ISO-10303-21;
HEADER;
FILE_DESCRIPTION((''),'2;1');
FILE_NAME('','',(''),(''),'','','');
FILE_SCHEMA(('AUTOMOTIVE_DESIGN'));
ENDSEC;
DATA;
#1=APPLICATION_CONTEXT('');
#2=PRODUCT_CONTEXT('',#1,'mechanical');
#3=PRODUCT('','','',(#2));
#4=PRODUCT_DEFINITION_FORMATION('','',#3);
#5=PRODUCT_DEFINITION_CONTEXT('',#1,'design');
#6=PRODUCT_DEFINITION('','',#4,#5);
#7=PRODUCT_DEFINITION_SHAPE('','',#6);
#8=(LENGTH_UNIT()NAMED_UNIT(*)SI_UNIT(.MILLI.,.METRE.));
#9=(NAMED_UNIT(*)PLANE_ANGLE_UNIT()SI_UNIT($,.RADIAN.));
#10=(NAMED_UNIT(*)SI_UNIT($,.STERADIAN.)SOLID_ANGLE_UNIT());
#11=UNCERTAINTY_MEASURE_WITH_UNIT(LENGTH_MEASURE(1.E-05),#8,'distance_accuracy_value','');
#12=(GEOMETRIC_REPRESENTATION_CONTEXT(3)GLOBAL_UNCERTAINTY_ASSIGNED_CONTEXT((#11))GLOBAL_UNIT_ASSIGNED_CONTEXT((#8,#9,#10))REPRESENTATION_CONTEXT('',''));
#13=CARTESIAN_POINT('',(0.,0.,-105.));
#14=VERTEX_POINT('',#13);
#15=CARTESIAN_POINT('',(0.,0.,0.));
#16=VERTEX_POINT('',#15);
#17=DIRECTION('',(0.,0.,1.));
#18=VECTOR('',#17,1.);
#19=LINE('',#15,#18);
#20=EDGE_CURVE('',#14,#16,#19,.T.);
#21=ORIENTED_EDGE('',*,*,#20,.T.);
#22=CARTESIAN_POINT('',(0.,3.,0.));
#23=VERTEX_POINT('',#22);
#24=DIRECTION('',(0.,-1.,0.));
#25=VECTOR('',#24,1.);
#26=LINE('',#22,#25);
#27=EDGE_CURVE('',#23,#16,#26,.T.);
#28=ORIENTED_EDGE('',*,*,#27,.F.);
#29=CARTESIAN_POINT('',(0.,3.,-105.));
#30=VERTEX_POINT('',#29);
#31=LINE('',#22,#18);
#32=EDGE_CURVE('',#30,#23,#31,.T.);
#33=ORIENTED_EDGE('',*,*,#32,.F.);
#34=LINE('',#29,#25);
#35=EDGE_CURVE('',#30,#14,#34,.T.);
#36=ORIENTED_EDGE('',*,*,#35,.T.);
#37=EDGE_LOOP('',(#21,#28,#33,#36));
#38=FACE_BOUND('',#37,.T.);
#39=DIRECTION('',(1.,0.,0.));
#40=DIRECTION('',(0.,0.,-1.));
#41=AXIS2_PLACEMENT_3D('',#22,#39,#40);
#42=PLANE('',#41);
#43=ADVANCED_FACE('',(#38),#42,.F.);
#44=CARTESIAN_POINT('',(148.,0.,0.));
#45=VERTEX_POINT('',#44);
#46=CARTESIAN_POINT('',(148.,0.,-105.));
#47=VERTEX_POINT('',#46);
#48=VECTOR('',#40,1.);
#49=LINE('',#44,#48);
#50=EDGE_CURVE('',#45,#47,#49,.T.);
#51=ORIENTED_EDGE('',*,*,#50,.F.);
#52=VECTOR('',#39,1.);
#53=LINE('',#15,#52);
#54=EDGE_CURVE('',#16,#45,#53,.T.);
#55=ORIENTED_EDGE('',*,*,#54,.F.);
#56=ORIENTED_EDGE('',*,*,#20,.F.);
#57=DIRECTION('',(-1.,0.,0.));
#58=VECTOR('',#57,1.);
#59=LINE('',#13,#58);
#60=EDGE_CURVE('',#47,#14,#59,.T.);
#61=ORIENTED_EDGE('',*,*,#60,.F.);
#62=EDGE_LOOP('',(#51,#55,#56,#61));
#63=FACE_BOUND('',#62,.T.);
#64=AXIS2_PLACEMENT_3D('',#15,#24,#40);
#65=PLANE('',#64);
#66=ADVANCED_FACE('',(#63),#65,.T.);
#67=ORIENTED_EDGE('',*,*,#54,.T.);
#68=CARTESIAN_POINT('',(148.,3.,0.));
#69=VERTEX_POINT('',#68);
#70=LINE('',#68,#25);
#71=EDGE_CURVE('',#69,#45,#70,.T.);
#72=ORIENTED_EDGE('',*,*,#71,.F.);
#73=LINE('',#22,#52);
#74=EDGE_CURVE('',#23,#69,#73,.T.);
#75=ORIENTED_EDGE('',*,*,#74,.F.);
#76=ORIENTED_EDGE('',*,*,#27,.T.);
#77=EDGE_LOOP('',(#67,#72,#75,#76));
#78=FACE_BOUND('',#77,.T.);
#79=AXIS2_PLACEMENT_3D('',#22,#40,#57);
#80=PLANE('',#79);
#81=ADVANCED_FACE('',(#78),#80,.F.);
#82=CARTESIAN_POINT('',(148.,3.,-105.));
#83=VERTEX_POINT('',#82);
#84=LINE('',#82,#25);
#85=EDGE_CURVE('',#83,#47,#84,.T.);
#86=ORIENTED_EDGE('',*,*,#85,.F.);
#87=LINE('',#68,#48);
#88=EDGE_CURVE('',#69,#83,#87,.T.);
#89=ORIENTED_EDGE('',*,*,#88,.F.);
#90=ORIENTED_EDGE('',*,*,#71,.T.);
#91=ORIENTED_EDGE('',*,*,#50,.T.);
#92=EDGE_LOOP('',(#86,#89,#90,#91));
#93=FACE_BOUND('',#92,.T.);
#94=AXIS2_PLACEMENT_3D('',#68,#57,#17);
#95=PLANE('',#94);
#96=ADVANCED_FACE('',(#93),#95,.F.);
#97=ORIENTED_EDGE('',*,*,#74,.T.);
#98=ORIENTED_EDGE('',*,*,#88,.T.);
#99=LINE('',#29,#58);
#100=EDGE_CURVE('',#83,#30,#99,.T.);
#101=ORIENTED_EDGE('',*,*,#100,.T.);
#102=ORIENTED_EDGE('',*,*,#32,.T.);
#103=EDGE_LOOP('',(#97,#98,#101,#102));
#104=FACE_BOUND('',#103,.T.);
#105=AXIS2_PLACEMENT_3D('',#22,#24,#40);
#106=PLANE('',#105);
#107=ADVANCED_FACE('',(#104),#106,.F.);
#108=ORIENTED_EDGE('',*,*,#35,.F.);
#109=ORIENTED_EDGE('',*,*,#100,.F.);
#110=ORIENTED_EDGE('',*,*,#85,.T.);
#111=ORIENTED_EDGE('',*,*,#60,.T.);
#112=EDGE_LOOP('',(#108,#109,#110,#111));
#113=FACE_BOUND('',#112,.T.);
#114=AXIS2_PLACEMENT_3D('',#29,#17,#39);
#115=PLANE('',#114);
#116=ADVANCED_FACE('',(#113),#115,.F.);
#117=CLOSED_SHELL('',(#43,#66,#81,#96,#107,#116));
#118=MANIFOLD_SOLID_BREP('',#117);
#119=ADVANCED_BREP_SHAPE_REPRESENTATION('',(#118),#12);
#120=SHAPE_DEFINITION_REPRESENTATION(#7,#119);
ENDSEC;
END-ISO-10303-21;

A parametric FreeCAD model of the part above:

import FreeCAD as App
import Part
import Sketcher

V = App.Vector

doc = App.newDocument("Part")
body = doc.addObject("PartDesign::Body", "Body")

# Sketch on XZ plane
sketch1 = doc.addObject("Sketcher::SketchObject", "Sketch")
body.addObject(sketch1)
sketch1.AttachmentSupport = (doc.XZ_Plane, [""])
sketch1.MapMode = "FlatFace"
sketch1.addGeometry([
    Part.LineSegment(V(0, -105, 0), V(0, 0, 0)),
    Part.LineSegment(V(0, 0, 0), V(148, 0, 0)),
    Part.LineSegment(V(148, 0, 0), V(148, -105, 0)),
    Part.LineSegment(V(148, -105, 0), V(0, -105, 0)),
], False)
sketch1.addConstraint([
    Sketcher.Constraint("Coincident", 0, 2, 1, 1),
    Sketcher.Constraint("Coincident", 1, 2, 2, 1),
    Sketcher.Constraint("Coincident", 2, 2, 3, 1),
    Sketcher.Constraint("Coincident", 3, 2, 0, 1),
    Sketcher.Constraint("Vertical", 0),
    Sketcher.Constraint("Horizontal", 1),
    Sketcher.Constraint("Vertical", 2),
    Sketcher.Constraint("Horizontal", 3),
    Sketcher.Constraint("Coincident", 0, 2, -1, 1),
    Sketcher.Constraint("DistanceX", 1, 1, 1, 2, 148.0),
    Sketcher.Constraint("DistanceY", 0, 1, 0, 2, 105.0),
])
pad1 = doc.addObject("PartDesign::Pad", "Pad")
body.addObject(pad1)
pad1.Profile = sketch1
pad1.Length = 3
pad1.Reversed = True

doc.recompute()
